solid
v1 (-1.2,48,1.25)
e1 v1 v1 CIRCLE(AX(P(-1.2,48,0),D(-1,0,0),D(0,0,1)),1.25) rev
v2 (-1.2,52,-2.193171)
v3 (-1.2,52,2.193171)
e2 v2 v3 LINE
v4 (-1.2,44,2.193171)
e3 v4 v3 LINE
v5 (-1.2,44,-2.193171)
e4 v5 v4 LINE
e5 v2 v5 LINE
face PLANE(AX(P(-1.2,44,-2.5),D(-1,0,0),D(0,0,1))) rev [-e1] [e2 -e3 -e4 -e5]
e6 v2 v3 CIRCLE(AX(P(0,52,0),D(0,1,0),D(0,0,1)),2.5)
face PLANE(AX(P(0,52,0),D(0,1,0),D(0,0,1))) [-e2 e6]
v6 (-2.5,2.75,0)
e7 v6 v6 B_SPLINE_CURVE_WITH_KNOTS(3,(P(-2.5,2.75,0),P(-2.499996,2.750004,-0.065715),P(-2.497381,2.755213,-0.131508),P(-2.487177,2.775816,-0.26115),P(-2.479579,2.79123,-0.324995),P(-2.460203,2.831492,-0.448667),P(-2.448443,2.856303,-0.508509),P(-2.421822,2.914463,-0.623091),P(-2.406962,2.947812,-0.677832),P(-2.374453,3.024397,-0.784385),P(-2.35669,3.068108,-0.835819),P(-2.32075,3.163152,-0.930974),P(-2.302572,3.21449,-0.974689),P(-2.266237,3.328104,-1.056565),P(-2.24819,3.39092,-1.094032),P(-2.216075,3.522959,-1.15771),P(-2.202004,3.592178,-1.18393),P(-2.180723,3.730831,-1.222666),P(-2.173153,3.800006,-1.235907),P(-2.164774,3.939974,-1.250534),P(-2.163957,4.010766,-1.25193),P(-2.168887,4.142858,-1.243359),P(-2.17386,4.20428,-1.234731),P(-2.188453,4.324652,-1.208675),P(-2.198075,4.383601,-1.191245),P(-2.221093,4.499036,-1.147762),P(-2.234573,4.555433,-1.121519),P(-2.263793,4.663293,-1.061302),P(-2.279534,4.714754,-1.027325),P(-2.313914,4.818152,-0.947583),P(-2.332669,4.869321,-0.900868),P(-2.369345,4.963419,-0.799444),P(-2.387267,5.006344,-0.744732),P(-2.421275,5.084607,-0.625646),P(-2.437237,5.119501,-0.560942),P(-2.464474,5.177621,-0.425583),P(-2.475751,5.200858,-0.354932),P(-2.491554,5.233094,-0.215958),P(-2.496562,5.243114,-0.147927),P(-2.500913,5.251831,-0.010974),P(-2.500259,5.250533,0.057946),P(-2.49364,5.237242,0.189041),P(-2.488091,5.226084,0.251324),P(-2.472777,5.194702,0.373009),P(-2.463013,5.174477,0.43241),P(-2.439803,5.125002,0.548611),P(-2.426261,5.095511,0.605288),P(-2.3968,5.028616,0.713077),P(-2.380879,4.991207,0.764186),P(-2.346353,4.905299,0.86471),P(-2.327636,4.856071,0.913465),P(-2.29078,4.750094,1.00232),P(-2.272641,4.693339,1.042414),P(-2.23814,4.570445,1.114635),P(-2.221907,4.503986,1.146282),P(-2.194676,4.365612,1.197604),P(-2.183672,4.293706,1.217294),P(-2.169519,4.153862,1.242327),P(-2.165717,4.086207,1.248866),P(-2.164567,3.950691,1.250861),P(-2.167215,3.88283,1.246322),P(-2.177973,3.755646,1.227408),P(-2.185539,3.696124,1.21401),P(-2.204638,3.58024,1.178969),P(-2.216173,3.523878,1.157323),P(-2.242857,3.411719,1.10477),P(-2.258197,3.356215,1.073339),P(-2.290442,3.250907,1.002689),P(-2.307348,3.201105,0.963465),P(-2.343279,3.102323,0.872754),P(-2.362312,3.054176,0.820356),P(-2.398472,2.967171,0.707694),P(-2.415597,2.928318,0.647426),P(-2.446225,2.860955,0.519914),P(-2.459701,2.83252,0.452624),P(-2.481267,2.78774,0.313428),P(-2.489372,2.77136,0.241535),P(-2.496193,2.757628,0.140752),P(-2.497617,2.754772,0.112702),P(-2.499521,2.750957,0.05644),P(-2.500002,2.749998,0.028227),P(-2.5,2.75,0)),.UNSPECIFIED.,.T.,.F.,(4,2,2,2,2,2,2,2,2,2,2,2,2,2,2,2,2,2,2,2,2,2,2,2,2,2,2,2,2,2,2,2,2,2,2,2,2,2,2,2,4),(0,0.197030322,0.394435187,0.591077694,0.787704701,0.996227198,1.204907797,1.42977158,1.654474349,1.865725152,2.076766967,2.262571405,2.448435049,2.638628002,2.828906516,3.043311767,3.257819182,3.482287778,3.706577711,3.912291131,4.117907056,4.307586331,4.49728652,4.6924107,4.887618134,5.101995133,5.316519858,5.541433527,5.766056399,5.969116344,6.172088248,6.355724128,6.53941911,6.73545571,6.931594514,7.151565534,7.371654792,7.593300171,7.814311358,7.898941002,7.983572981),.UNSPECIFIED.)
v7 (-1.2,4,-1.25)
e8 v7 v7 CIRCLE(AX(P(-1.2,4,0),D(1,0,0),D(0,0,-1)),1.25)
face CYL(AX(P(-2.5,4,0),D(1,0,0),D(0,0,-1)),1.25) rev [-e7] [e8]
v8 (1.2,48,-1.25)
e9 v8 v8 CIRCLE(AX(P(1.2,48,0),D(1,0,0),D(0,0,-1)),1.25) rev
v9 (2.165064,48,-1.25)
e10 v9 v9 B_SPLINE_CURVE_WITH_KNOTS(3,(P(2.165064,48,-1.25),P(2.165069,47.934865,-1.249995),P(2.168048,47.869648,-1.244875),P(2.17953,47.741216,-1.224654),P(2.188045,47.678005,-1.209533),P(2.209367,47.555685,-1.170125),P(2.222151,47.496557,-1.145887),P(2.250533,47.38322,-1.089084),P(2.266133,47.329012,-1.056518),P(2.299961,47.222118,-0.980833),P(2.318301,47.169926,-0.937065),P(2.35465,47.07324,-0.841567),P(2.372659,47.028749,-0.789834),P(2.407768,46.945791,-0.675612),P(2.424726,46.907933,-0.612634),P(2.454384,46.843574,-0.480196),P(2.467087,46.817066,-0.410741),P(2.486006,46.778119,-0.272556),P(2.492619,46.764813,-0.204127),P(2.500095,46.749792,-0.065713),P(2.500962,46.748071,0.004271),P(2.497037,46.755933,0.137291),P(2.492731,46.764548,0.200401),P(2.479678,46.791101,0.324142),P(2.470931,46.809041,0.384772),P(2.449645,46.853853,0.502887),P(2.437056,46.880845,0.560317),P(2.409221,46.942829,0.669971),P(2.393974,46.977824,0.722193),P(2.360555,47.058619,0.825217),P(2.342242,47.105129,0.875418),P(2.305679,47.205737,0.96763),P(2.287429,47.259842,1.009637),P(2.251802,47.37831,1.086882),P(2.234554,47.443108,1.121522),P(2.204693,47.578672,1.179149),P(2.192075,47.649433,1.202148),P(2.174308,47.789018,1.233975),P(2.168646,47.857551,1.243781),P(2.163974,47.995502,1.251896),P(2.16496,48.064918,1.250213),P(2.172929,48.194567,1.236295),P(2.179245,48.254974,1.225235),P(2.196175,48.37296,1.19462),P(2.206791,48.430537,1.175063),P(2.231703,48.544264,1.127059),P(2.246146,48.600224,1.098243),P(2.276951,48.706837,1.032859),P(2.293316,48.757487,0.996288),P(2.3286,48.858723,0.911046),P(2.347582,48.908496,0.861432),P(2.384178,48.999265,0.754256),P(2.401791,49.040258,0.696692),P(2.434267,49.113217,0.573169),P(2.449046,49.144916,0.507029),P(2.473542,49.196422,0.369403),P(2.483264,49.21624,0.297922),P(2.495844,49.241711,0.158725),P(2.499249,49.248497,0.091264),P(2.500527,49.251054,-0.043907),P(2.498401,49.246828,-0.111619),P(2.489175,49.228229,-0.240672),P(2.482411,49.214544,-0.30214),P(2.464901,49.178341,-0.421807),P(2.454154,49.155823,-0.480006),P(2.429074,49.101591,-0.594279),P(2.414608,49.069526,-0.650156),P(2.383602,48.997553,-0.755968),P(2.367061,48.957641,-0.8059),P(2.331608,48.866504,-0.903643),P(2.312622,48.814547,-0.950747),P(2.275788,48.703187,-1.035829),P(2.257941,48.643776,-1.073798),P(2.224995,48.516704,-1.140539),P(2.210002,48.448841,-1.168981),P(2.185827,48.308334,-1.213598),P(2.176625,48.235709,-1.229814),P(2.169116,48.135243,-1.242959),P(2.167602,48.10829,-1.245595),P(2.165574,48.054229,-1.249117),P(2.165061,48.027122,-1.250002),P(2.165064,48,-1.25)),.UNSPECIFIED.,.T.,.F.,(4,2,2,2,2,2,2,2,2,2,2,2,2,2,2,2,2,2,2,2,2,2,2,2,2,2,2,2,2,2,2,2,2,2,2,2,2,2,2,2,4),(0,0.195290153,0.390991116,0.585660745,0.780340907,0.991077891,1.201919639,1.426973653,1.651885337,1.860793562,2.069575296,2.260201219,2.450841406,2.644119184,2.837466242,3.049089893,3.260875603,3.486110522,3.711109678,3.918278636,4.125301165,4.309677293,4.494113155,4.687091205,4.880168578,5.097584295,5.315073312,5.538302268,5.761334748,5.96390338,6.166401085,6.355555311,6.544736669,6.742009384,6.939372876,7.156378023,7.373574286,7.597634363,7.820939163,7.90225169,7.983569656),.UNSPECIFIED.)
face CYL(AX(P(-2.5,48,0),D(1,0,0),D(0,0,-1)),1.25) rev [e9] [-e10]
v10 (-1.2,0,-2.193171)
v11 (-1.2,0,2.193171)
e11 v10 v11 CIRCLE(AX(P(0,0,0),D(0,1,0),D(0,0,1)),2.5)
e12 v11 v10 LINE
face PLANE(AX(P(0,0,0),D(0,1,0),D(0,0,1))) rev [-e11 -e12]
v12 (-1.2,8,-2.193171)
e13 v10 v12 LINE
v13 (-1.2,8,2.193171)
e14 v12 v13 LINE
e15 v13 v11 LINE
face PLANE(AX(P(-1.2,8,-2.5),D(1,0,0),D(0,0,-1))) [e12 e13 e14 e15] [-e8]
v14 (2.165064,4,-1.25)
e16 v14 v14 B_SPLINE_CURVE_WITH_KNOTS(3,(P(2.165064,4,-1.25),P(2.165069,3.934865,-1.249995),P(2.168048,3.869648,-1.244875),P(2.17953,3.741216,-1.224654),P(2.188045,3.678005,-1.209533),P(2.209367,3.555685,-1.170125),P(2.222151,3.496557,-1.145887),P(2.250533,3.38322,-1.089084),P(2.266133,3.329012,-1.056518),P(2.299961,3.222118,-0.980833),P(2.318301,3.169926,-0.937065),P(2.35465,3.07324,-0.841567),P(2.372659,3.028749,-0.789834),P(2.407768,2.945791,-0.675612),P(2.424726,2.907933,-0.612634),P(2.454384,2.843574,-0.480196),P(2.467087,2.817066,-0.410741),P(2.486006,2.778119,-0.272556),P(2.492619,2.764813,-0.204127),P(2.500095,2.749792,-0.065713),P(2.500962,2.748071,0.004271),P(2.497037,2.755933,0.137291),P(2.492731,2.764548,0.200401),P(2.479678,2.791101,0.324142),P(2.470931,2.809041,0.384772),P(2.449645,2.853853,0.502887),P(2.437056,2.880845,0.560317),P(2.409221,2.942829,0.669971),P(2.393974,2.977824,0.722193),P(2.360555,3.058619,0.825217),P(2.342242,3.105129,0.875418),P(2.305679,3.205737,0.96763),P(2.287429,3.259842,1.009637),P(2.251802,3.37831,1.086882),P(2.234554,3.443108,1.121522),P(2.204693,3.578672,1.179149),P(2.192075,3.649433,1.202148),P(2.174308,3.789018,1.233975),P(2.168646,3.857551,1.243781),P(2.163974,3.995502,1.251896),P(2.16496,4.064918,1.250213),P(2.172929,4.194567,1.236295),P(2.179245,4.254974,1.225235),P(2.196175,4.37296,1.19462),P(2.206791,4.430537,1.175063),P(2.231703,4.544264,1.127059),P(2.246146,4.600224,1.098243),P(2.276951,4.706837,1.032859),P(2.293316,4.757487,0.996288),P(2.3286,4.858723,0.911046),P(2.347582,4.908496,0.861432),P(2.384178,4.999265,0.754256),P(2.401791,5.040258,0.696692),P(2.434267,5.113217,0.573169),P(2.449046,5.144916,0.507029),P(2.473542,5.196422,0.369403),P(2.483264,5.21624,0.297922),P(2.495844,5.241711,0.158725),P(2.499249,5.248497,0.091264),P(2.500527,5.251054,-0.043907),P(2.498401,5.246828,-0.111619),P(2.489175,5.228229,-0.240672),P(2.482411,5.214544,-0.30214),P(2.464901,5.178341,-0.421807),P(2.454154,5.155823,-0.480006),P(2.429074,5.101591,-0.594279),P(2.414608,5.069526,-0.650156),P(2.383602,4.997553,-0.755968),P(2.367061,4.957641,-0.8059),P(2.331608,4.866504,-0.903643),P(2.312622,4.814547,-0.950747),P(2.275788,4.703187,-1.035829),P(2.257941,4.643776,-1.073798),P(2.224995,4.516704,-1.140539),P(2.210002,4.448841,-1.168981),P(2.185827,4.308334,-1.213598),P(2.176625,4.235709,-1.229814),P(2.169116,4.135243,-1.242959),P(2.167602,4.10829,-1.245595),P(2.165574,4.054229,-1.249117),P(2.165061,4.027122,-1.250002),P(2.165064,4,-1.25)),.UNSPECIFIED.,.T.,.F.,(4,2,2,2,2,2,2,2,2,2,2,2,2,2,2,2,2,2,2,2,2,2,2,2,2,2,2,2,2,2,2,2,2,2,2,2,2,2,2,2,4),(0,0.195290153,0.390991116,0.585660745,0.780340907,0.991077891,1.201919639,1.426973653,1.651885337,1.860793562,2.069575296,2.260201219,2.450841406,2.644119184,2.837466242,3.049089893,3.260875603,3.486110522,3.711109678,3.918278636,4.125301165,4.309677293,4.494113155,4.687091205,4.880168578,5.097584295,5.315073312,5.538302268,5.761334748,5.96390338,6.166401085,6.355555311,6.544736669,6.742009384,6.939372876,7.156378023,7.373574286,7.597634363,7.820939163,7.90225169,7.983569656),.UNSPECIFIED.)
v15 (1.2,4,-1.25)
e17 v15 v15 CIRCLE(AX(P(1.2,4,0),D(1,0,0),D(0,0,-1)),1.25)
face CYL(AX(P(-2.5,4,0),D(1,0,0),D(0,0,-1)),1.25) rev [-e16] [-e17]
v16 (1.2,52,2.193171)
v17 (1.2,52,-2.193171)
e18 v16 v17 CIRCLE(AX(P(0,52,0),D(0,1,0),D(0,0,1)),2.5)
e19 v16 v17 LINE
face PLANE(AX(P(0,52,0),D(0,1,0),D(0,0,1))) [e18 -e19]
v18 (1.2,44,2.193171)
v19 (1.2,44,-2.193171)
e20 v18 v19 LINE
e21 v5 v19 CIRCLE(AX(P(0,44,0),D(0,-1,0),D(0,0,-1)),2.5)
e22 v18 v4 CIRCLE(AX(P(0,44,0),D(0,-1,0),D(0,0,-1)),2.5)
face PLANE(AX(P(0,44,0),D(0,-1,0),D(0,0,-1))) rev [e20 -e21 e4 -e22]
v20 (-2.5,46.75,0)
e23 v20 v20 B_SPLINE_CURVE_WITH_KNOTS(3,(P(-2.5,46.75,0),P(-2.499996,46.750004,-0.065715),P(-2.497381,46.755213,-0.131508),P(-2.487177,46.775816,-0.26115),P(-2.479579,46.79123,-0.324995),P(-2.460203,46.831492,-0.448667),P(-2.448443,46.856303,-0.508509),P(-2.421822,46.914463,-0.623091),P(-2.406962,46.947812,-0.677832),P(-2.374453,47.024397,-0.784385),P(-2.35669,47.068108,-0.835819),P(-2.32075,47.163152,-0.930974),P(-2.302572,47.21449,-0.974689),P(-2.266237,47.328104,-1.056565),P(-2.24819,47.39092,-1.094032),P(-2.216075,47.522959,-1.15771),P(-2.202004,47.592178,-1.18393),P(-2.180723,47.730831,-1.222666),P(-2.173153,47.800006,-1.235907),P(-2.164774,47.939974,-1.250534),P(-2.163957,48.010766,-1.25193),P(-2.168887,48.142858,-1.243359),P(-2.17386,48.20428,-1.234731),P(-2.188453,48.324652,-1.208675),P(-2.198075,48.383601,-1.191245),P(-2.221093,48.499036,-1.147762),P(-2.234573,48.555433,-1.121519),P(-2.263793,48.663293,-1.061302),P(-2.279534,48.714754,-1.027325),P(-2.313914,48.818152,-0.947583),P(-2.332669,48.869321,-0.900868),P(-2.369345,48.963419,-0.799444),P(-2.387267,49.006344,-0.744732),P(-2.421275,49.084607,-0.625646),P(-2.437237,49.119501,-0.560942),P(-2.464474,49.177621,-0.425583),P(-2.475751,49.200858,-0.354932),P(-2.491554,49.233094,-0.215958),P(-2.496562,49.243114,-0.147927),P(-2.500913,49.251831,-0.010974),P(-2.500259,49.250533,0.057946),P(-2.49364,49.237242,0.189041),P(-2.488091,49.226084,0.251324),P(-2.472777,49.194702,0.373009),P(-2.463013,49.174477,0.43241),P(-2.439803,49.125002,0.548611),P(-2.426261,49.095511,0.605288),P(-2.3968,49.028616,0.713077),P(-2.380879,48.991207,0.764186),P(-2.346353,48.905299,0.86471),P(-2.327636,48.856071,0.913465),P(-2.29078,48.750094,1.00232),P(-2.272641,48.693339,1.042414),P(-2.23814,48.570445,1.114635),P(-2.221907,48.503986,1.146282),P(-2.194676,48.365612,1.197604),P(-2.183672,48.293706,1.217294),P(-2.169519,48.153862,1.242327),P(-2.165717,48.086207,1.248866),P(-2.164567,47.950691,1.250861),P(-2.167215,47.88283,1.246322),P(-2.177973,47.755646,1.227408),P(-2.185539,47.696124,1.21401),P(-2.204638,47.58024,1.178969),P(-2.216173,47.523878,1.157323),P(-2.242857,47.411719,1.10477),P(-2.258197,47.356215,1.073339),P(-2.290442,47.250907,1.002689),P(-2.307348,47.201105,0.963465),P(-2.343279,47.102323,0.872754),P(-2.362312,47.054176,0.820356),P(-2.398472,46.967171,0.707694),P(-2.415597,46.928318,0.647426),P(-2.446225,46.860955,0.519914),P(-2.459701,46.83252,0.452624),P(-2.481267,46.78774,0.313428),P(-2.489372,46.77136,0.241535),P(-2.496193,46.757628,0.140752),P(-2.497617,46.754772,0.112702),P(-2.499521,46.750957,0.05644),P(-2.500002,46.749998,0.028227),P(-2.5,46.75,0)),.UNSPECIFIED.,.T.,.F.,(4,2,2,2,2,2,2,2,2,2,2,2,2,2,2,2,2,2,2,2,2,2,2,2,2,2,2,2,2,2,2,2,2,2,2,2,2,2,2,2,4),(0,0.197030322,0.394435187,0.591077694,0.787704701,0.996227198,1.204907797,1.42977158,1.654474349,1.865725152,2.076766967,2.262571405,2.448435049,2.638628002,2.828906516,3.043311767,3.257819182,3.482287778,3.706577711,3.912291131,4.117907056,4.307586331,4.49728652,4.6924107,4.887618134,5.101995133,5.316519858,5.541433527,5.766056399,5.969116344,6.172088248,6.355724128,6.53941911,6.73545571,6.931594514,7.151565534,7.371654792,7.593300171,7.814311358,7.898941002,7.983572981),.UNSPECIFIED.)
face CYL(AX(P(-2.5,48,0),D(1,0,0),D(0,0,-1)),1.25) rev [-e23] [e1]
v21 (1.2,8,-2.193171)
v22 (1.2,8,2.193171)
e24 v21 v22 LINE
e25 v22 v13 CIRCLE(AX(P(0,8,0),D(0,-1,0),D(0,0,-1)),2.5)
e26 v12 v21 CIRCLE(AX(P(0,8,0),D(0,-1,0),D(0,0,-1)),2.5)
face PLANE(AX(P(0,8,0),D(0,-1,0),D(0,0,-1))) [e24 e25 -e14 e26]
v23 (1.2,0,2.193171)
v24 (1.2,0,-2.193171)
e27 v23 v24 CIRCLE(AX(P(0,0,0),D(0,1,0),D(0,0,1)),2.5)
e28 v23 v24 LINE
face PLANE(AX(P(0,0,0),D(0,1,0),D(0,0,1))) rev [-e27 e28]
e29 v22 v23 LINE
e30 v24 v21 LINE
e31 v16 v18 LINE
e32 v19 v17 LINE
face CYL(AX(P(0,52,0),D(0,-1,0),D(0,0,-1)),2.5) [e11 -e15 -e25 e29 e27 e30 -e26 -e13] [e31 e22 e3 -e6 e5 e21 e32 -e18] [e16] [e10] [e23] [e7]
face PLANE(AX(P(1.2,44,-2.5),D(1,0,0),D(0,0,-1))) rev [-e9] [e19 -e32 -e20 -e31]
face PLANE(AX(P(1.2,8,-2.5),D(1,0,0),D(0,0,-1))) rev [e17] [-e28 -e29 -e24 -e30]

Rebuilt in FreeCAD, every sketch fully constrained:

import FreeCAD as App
import Part
import Sketcher

doc = App.newDocument("Part")
body = doc.addObject("PartDesign::Body", "Body")

# Sketch on XZ plane
sketch1 = body.newObject("Sketcher::SketchObject", "Sketch")
sketch1.AttachmentSupport = (doc.getObject("XZ_Plane"), [""])
sketch1.MapMode = "FlatFace"
sketch1.addGeometry(Part.Circle(App.Vector(0, 0, 0), App.Vector(0, 0, 1), 2.5), False)
sketch1.addConstraint([
    Sketcher.Constraint("Coincident", 0, 3, -1, 1),
    Sketcher.Constraint("Diameter", 0, 5.0),
])
pad1 = body.newObject("PartDesign::Pad", "Pad")
pad1.Profile = sketch1
pad1.Length = 52
pad1.Reversed = True

# Sketch on XZ plane
sketch2 = body.newObject("Sketcher::SketchObject", "Sketch001")
sketch2.AttachmentSupport = (doc.getObject("XZ_Plane"), [""])
sketch2.MapMode = "FlatFace"
sketch2.addGeometry([
    Part.LineSegment(App.Vector(-1.2, 2.5, 0), App.Vector(-1.2, -2.5, 0)),
    Part.LineSegment(App.Vector(-1.2, -2.5, 0), App.Vector(1.2, -2.5, 0)),
    Part.LineSegment(App.Vector(1.2, -2.5, 0), App.Vector(1.2, 2.5, 0)),
    Part.LineSegment(App.Vector(1.2, 2.5, 0), App.Vector(-1.2, 2.5, 0)),
], False)
sketch2.addConstraint([
    Sketcher.Constraint("Coincident", 0, 2, 1, 1),
    Sketcher.Constraint("Coincident", 1, 2, 2, 1),
    Sketcher.Constraint("Coincident", 2, 2, 3, 1),
    Sketcher.Constraint("Coincident", 3, 2, 0, 1),
    Sketcher.Constraint("Vertical", 0),
    Sketcher.Constraint("Horizontal", 1),
    Sketcher.Constraint("Vertical", 2),
    Sketcher.Constraint("Horizontal", 3),
    Sketcher.Constraint("Symmetric", 0, 2, 2, 2, -1, 1),
    Sketcher.Constraint("DistanceY", 0, 2, 0, 1, 5.0),
    Sketcher.Constraint("DistanceX", 1, 1, 1, 2, 2.4),
])
pocket1 = body.newObject("PartDesign::Pocket", "Pocket")
pocket1.Profile = sketch2
pocket1.Length = 8

# Sketch on YZ plane
sketch3 = body.newObject("Sketcher::SketchObject", "Sketch002")
sketch3.AttachmentSupport = (doc.getObject("YZ_Plane"), [""])
sketch3.MapMode = "FlatFace"
sketch3.addGeometry([
    Part.Circle(App.Vector(4, 0, 0), App.Vector(0, 0, 1), 1.2),
    Part.Circle(App.Vector(48, 0, 0), App.Vector(0, 0, 1), 1.2),
], False)
sketch3.addConstraint([
    Sketcher.Constraint("Equal", 0, 1),
    Sketcher.Constraint("PointOnObject", 0, 3, -1),
    Sketcher.Constraint("PointOnObject", 1, 3, -1),
    Sketcher.Constraint("Diameter", 0, 2.5),
    Sketcher.Constraint("DistanceX", -1, 1, 0, 3, 4.0),
    Sketcher.Constraint("DistanceX", -1, 1, 1, 3, 48.0),
])
pocket2 = body.newObject("PartDesign::Pocket", "Pocket001")
pocket2.Profile = sketch3
pocket2.Type = "ThroughAll"
pocket2.Midplane = True

# Sketch on XZ plane
sketch4 = body.newObject("Sketcher::SketchObject", "Sketch003")
sketch4.AttachmentSupport = (doc.getObject("XZ_Plane"), [""])
sketch4.MapMode = "FlatFace"
sketch4.AttachmentOffset = App.Placement(App.Vector(0, 0, -52), App.Rotation())
sketch4.addGeometry([
    Part.LineSegment(App.Vector(1.2, 2.5, 0), App.Vector(1.2, -2.5, 0)),
    Part.LineSegment(App.Vector(1.2, -2.5, 0), App.Vector(-1.2, -2.5, 0)),
    Part.LineSegment(App.Vector(-1.2, -2.5, 0), App.Vector(-1.2, 2.5, 0)),
    Part.LineSegment(App.Vector(-1.2, 2.5, 0), App.Vector(1.2, 2.5, 0)),
], False)
sketch4.addConstraint([
    Sketcher.Constraint("Coincident", 0, 2, 1, 1),
    Sketcher.Constraint("Coincident", 1, 2, 2, 1),
    Sketcher.Constraint("Coincident", 2, 2, 3, 1),
    Sketcher.Constraint("Coincident", 3, 2, 0, 1),
    Sketcher.Constraint("Vertical", 0),
    Sketcher.Constraint("Horizontal", 1),
    Sketcher.Constraint("Vertical", 2),
    Sketcher.Constraint("Horizontal", 3),
    Sketcher.Constraint("Symmetric", 0, 2, 2, 2, -1, 1),
    Sketcher.Constraint("DistanceY", 0, 2, 0, 1, 5.0),
    Sketcher.Constraint("DistanceX", 1, 2, 1, 1, 2.4),
])
pocket3 = body.newObject("PartDesign::Pocket", "Pocket002")
pocket3.Profile = sketch4
pocket3.Length = 8
pocket3.Reversed = True

doc.recompute()
